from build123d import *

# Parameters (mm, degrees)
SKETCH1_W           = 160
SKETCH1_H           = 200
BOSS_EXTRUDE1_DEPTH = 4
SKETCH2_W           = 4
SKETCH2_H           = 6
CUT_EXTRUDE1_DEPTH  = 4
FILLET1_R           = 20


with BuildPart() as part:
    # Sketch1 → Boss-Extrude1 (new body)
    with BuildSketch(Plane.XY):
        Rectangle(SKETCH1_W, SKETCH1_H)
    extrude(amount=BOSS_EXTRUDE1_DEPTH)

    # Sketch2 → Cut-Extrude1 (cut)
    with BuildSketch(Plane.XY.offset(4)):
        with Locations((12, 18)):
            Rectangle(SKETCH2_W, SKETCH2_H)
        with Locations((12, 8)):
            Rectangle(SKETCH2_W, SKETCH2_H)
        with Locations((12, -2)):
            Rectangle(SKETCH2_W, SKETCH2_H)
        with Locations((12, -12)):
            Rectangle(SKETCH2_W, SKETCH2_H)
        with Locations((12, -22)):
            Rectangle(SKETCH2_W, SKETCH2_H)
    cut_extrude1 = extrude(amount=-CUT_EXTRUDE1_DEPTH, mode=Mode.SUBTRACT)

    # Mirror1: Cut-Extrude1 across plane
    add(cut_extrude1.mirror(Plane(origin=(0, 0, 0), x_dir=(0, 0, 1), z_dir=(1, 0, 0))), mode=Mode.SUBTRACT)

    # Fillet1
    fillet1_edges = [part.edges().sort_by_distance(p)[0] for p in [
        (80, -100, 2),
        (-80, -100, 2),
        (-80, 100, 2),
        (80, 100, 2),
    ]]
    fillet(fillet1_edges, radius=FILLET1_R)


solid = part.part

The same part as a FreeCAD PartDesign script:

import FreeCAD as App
import Part
import Sketcher

V = App.Vector


def edges_at(feature, points):
    """Names of the edges that pass closest to the given points."""
    edges = feature.Shape.Edges
    near = lambda p: min(range(len(edges)), key=lambda i: edges[i].distToShape(Part.Vertex(*p))[0])
    return sorted({f"Edge{near(p) + 1}" for p in points})


def add_polygon(sketch, points):
    """Adds a closed chain of lines whose ends are joined by coincident constraints."""
    first, n = sketch.GeometryCount, len(points)
    for a, b in zip(points, points[1:] + points[:1]):
        sketch.addGeometry(Part.LineSegment(App.Vector(*a, 0), App.Vector(*b, 0)), False)
    for i in range(n):
        sketch.addConstraint(Sketcher.Constraint("Coincident", first + i, 2, first + (i + 1) % n, 1))

doc = App.newDocument("Part")
body = doc.addObject("PartDesign::Body", "Body")

sketch1 = doc.addObject("Sketcher::SketchObject", "Sketch")
body.addObject(sketch1)
sketch1.AttachmentSupport = (doc.XY_Plane, [""])
sketch1.MapMode = "FlatFace"
add_polygon(sketch1, [(-80, 100), (-80, -100), (80, -100), (80, 100)])
sketch1.addConstraint([
    Sketcher.Constraint("Vertical", 0),
    Sketcher.Constraint("Horizontal", 1),
    Sketcher.Constraint("Vertical", 2),
    Sketcher.Constraint("Horizontal", 3),
    Sketcher.Constraint("Symmetric", 0, 2, 2, 2, -1, 1),
    Sketcher.Constraint("DistanceX", 1, 1, 1, 2, 160.0),
    Sketcher.Constraint("DistanceY", 0, 2, 0, 1, 200.0),
])
pad1 = doc.addObject("PartDesign::Pad", "Pad")
body.addObject(pad1)
pad1.Profile = sketch1
pad1.Length = 4

sketch2 = doc.addObject("Sketcher::SketchObject", "Sketch001")
body.addObject(sketch2)
sketch2.AttachmentSupport = (doc.XY_Plane, [""])
sketch2.MapMode = "FlatFace"
sketch2.AttachmentOffset = App.Placement(V(0, 0, 4), App.Rotation())
add_polygon(sketch2, [(10, 21), (10, 15), (14, 15), (14, 21)])
add_polygon(sketch2, [(10, 11), (10, 5), (14, 5), (14, 11)])
add_polygon(sketch2, [(10, 1), (10, -5), (14, -5), (14, 1)])
add_polygon(sketch2, [(10, -9), (10, -15), (14, -15), (14, -9)])
add_polygon(sketch2, [(10, -19), (10, -25), (14, -25), (14, -19)])
sketch2.addConstraint([
    Sketcher.Constraint("Vertical", 0),
    Sketcher.Constraint("Horizontal", 1),
    Sketcher.Constraint("Vertical", 2),
    Sketcher.Constraint("Horizontal", 3),
    Sketcher.Constraint("Vertical", 4),
    Sketcher.Constraint("Horizontal", 5),
    Sketcher.Constraint("Vertical", 6),
    Sketcher.Constraint("Horizontal", 7),
    Sketcher.Constraint("Vertical", 8),
    Sketcher.Constraint("Horizontal", 9),
    Sketcher.Constraint("Vertical", 10),
    Sketcher.Constraint("Horizontal", 11),
    Sketcher.Constraint("Vertical", 12),
    Sketcher.Constraint("Horizontal", 13),
    Sketcher.Constraint("Vertical", 14),
    Sketcher.Constraint("Horizontal", 15),
    Sketcher.Constraint("Vertical", 16),
    Sketcher.Constraint("Horizontal", 17),
    Sketcher.Constraint("Vertical", 18),
    Sketcher.Constraint("Horizontal", 19),
    Sketcher.Constraint("Symmetric", 4, 2, 8, 2, -1),
    Sketcher.Constraint("Symmetric", 0, 2, 12, 2, -1),
    Sketcher.Constraint("Vertical", 3, 2, 4, 2),
    Sketcher.Constraint("Vertical", 2, 2, 5, 2),
    Sketcher.Constraint("Vertical", 6, 2, 9, 2),
    Sketcher.Constraint("Vertical", 10, 2, 13, 2),
    Sketcher.Constraint("Vertical", 15, 2, 16, 2),
    Sketcher.Constraint("Vertical", 14, 2, 17, 2),
    Sketcher.Constraint("Equal", 2, 4),
    Sketcher.Constraint("Equal", 6, 8),
    Sketcher.Constraint("Equal", 10, 12),
    Sketcher.Constraint("Equal", 14, 16),
    Sketcher.Constraint("DistanceX", 1, 1, 1, 2, 4.0),
    Sketcher.Constraint("DistanceY", 0, 2, 0, 1, 6.0),
    Sketcher.Constraint("DistanceX", -1, 1, 0, 2, 10.0),
    Sketcher.Constraint("DistanceY", -1, 1, 0, 2, 15.0),
    Sketcher.Constraint("DistanceY", -1, 1, 4, 2, 5.0),
    Sketcher.Constraint("DistanceY", 16, 2, -1, 1, 25.0),
])
pocket1 = doc.addObject("PartDesign::Pocket", "Pocket")
body.addObject(pocket1)
pocket1.Profile = sketch2
pocket1.Length = 4
doc.recompute()

mirrored = doc.addObject("PartDesign::Mirrored", "Mirrored")
body.addObject(mirrored)
mirrored.Originals = [pocket1]
mirrored.MirrorPlane = (doc.YZ_Plane, [""])
body.Tip = mirrored
doc.recompute()

fillet = doc.addObject("PartDesign::Fillet", "Fillet")
body.addObject(fillet)
fillet.Base = (mirrored, edges_at(mirrored, [
    (80, -100, 2),
    (-80, -100, 2),
    (-80, 100, 2),
    (80, 100, 2),
]))
fillet.Radius = 20

doc.recompute()
